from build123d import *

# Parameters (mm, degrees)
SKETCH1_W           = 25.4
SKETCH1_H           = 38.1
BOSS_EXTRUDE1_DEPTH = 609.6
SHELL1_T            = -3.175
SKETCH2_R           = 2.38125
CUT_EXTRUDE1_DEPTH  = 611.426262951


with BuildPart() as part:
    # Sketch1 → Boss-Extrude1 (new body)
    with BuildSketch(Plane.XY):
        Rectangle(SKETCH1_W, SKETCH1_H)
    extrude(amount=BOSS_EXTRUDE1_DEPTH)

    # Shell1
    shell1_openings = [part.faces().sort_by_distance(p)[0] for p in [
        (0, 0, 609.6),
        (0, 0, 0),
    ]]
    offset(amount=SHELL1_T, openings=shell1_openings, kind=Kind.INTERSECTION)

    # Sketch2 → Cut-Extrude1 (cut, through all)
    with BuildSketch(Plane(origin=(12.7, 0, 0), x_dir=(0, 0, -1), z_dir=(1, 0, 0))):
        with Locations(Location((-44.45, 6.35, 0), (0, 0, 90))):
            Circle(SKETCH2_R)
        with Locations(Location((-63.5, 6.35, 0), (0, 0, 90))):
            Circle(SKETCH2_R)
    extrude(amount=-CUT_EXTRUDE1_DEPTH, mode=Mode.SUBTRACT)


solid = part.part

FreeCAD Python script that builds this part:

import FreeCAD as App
import Part
import Sketcher

V = App.Vector
Q = App.Units.Quantity


def faces_at(feature, points):
    """Names of the faces that lie closest to the given points."""
    faces = feature.Shape.Faces
    near = lambda p: min(range(len(faces)), key=lambda i: faces[i].distToShape(Part.Vertex(*p))[0])
    return sorted({f"Face{near(p) + 1}" for p in points})

doc = App.newDocument("Part")
params = doc.addObject("Spreadsheet::Sheet", "Params")
for row, (alias, value) in enumerate([
    ("sketch1_width", "1 in"),
    ("sketch1_height", "1.5 in"),
    ("pad1_length", "24 in"),
    ("thickness_wall", "0.125 in"),
    ("sketch2_diameter", "0.1875 in"),
], start=1):
    params.set(f"A{row}", alias)
    params.set(f"B{row}", "=" + value)
    params.setAlias(f"B{row}", alias)

body = doc.addObject("PartDesign::Body", "Body")

# Sketch on XY plane
sketch1 = doc.addObject("Sketcher::SketchObject", "Sketch")
body.addObject(sketch1)
sketch1.AttachmentSupport = (doc.XY_Plane, [""])
sketch1.MapMode = "FlatFace"
sketch1.addGeometry(Part.LineSegment(V(-13, 19, 0), V(-13, -19, 0)), False)
sketch1.addGeometry(Part.LineSegment(V(-13, -19, 0), V(13, -19, 0)), False)
sketch1.addGeometry(Part.LineSegment(V(13, -19, 0), V(13, 19, 0)), False)
sketch1.addGeometry(Part.LineSegment(V(13, 19, 0), V(-13, 19, 0)), False)
sketch1.addConstraint(Sketcher.Constraint("Coincident", 0, 2, 1, 1))
sketch1.addConstraint(Sketcher.Constraint("Coincident", 1, 2, 2, 1))
sketch1.addConstraint(Sketcher.Constraint("Coincident", 2, 2, 3, 1))
sketch1.addConstraint(Sketcher.Constraint("Coincident", 3, 2, 0, 1))
sketch1.addConstraint(Sketcher.Constraint("Vertical", 0))
sketch1.addConstraint(Sketcher.Constraint("Horizontal", 1))
sketch1.addConstraint(Sketcher.Constraint("Vertical", 2))
sketch1.addConstraint(Sketcher.Constraint("Horizontal", 3))
sketch1.addConstraint(Sketcher.Constraint("Symmetric", 0, 2, 2, 2, -1, 1))
sketch1.addConstraint(Sketcher.Constraint("DistanceX", 1, 1, 1, 2, Q("1 in")))
sketch1.addConstraint(Sketcher.Constraint("DistanceY", 0, 2, 0, 1, Q("1.5 in")))
sketch1.setExpression("Constraints[9]", "Params.sketch1_width")
sketch1.setExpression("Constraints[10]", "Params.sketch1_height")
pad1 = doc.addObject("PartDesign::Pad", "Pad")
body.addObject(pad1)
pad1.Profile = sketch1
pad1.setExpression("Length", "Params.pad1_length")
doc.recompute()

thickness = doc.addObject("PartDesign::Thickness", "Thickness")
body.addObject(thickness)
thickness.Base = (pad1, faces_at(pad1, [(0, 0, 609.6), (0, 0, 0)]))
thickness.setExpression("Value", "Params.thickness_wall")
thickness.Reversed = True
thickness.Join = "Intersection"

# Sketch on YZ plane
sketch2 = doc.addObject("Sketcher::SketchObject", "Sketch001")
body.addObject(sketch2)
sketch2.AttachmentSupport = (doc.YZ_Plane, [""])
sketch2.MapMode = "FlatFace"
sketch2.AttachmentOffset = App.Placement(V(0, 0, 0.5 * 25.4), App.Rotation())
sketch2.addGeometry(Part.Circle(V(6.3, 44.5, 0), V(0, 0, 1), 2.4), False)
sketch2.addGeometry(Part.Circle(V(6.3, 63.5, 0), V(0, 0, 1), 2.4), False)
sketch2.addConstraint(Sketcher.Constraint("Equal", 0, 1))
sketch2.addConstraint(Sketcher.Constraint("Vertical", 0, 3, 1, 3))
sketch2.addConstraint(Sketcher.Constraint("Diameter", 0, Q("0.1875 in")))
sketch2.addConstraint(Sketcher.Constraint("DistanceY", -1, 1, 1, 3, Q("2.5 in")))
sketch2.addConstraint(Sketcher.Constraint("DistanceX", -1, 1, 0, 3, Q("0.25 in")))
sketch2.addConstraint(Sketcher.Constraint("DistanceY", -1, 1, 0, 3, Q("1.75 in")))
sketch2.setExpression("Constraints[2]", "Params.sketch2_diameter")
pocket1 = doc.addObject("PartDesign::Pocket", "Pocket")
body.addObject(pocket1)
pocket1.Profile = sketch2
pocket1.Type = "ThroughAll"

doc.recompute()
